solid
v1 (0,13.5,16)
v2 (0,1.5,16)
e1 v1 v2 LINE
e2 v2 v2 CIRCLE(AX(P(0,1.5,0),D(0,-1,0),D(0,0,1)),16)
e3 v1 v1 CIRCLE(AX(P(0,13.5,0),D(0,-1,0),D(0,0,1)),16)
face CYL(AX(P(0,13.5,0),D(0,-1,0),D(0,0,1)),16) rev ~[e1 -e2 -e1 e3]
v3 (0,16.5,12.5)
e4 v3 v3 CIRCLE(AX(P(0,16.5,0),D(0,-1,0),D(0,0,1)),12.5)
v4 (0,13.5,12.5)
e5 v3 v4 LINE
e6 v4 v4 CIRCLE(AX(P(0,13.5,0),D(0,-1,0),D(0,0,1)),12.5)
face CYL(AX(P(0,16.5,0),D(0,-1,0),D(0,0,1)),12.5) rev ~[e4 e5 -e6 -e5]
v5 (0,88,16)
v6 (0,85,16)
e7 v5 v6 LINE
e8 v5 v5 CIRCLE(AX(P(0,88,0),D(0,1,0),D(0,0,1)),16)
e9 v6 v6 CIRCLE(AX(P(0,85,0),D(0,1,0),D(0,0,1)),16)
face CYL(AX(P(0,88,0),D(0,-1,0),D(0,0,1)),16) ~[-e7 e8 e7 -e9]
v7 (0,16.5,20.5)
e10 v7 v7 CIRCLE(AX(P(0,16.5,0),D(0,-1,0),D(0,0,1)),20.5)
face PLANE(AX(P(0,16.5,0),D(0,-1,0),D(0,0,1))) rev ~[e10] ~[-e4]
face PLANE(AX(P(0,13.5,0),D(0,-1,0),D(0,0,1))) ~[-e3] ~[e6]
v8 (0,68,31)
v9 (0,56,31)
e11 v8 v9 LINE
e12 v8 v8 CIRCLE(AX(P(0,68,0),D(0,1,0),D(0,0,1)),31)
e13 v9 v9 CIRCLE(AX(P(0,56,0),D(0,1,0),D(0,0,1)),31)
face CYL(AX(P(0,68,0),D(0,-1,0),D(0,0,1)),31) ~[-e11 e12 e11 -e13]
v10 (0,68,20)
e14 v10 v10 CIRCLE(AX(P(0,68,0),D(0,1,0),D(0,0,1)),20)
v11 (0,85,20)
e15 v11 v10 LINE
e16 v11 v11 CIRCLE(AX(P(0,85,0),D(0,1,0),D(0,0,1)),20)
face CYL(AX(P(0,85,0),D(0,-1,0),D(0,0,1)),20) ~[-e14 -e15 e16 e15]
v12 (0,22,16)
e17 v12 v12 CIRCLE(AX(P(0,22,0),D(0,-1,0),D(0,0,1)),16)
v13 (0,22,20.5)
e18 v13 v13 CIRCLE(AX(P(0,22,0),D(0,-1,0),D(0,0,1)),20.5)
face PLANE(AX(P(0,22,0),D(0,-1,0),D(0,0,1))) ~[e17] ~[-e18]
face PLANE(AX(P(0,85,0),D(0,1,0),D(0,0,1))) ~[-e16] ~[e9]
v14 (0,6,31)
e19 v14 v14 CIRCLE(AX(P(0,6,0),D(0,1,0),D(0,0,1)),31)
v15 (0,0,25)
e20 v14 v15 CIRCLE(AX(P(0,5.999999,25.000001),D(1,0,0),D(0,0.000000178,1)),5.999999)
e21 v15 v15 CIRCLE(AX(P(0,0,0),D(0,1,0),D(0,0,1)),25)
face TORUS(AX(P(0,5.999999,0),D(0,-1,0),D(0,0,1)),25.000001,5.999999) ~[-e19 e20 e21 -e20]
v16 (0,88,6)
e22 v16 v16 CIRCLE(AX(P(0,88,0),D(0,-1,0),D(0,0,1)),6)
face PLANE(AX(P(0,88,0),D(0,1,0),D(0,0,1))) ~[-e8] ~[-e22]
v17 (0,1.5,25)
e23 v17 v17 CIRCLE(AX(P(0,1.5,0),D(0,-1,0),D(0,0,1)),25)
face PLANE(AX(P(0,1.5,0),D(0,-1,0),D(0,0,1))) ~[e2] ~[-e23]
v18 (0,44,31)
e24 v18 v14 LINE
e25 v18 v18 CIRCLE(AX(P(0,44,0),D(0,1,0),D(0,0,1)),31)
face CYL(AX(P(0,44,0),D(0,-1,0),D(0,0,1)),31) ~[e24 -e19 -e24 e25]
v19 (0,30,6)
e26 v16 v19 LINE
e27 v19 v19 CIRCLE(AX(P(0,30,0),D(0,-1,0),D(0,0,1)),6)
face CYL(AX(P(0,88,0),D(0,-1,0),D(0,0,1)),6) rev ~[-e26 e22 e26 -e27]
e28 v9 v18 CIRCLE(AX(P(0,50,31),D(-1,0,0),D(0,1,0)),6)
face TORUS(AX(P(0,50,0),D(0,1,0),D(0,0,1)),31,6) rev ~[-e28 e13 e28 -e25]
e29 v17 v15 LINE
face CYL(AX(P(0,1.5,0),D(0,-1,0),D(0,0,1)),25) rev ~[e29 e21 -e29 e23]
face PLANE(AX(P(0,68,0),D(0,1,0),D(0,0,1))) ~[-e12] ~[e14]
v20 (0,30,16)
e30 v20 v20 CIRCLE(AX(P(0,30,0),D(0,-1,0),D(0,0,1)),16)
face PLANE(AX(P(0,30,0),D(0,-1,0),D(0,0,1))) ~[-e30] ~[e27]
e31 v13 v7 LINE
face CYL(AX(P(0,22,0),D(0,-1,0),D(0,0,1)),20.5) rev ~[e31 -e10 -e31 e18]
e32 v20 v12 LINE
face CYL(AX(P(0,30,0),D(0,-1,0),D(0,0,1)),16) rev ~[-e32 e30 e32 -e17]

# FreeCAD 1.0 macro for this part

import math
import FreeCAD as App
import Part
import Sketcher

V = App.Vector
Q = App.Units.Quantity

doc = App.newDocument("Part")
body = doc.addObject("PartDesign::Body", "Body")

# Sketch on YZ plane
sketch1 = doc.addObject("Sketcher::SketchObject", "Sketch")
body.addObject(sketch1)
sketch1.AttachmentSupport = (doc.YZ_Plane, [""])
sketch1.MapMode = "FlatFace"
sketch1.addGeometry(Part.LineSegment(V(0, 25, 0), V(0, 0, 0)), False)
sketch1.addGeometry(Part.LineSegment(V(0, 0, 0), V(88, 0, 0)), False)
sketch1.addGeometry(Part.LineSegment(V(88, 0, 0), V(88, 16, 0)), False)
sketch1.addGeometry(Part.LineSegment(V(88, 16, 0), V(85, 16, 0)), False)
sketch1.addGeometry(Part.LineSegment(V(85, 16, 0), V(85, 20, 0)), False)
sketch1.addGeometry(Part.LineSegment(V(85, 20, 0), V(68, 20, 0)), False)
sketch1.addGeometry(Part.LineSegment(V(68, 20, 0), V(68, 31, 0)), False)
sketch1.addGeometry(Part.LineSegment(V(68, 31, 0), V(56, 31, 0)), False)
sketch1.addGeometry(Part.ArcOfCircle(Part.Circle(V(50, 31, 0), V(0, 0, 1), 6), math.radians(180), math.radians(360)), False)
sketch1.addGeometry(Part.LineSegment(V(44, 31, 0), V(6, 31, 0)), False)
sketch1.addGeometry(Part.ArcOfCircle(Part.Circle(V(5.999999, 25.000001, 0), V(0, 0, 1), 5.999999), math.radians(89.99999), math.radians(180.00001)), False)
sketch1.addConstraint(Sketcher.Constraint("Coincident", 0, 2, 1, 1))
sketch1.addConstraint(Sketcher.Constraint("Coincident", 1, 2, 2, 1))
sketch1.addConstraint(Sketcher.Constraint("Coincident", 2, 2, 3, 1))
sketch1.addConstraint(Sketcher.Constraint("Coincident", 3, 2, 4, 1))
sketch1.addConstraint(Sketcher.Constraint("Coincident", 4, 2, 5, 1))
sketch1.addConstraint(Sketcher.Constraint("Coincident", 5, 2, 6, 1))
sketch1.addConstraint(Sketcher.Constraint("Coincident", 6, 2, 7, 1))
sketch1.addConstraint(Sketcher.Constraint("Coincident", 7, 2, 8, 2))
sketch1.addConstraint(Sketcher.Constraint("Coincident", 8, 1, 9, 1))
sketch1.addConstraint(Sketcher.Constraint("Tangent", 9, 2, 10, 1))
sketch1.addConstraint(Sketcher.Constraint("Tangent", 10, 2, 0, 1))
sketch1.addConstraint(Sketcher.Constraint("Vertical", 0))
sketch1.addConstraint(Sketcher.Constraint("Horizontal", 1))
sketch1.addConstraint(Sketcher.Constraint("Vertical", 2))
sketch1.addConstraint(Sketcher.Constraint("Horizontal", 3))
sketch1.addConstraint(Sketcher.Constraint("Vertical", 4))
sketch1.addConstraint(Sketcher.Constraint("Horizontal", 5))
sketch1.addConstraint(Sketcher.Constraint("Vertical", 6))
sketch1.addConstraint(Sketcher.Constraint("Horizontal", 7))
sketch1.addConstraint(Sketcher.Constraint("Horizontal", 9))
sketch1.addConstraint(Sketcher.Constraint("Coincident", 0, 2, -1, 1))
sketch1.addConstraint(Sketcher.Constraint("Equal", 8, 10))
sketch1.addConstraint(Sketcher.Constraint("Horizontal", 8, 3, 6, 2))
sketch1.addConstraint(Sketcher.Constraint("Horizontal", 7, 2, 8, 1))
sketch1.addConstraint(Sketcher.Constraint("Radius", 8, Q("6 mm")))
sketch1.addConstraint(Sketcher.Constraint("DistanceX", 1, 1, 1, 2, Q("88 mm")))
sketch1.addConstraint(Sketcher.Constraint("DistanceX", 3, 2, 3, 1, Q("3 mm")))
sketch1.addConstraint(Sketcher.Constraint("DistanceX", 5, 2, 5, 1, Q("17 mm")))
sketch1.addConstraint(Sketcher.Constraint("DistanceX", 7, 2, 7, 1, Q("12 mm")))
sketch1.addConstraint(Sketcher.Constraint("DistanceY", 0, 2, 0, 1, Q("25 mm")))
sketch1.addConstraint(Sketcher.Constraint("DistanceY", 2, 1, 2, 2, Q("16 mm")))
sketch1.addConstraint(Sketcher.Constraint("DistanceY", 4, 1, 4, 2, Q("4 mm")))
revolution = doc.addObject("PartDesign::Revolution", "Revolution")
body.addObject(revolution)
revolution.Profile = sketch1
revolution.ReferenceAxis = (sketch1, ["H_Axis"])
revolution.Angle = 360

# Sketch on YZ plane
sketch2 = doc.addObject("Sketcher::SketchObject", "Sketch001")
body.addObject(sketch2)
sketch2.AttachmentSupport = (doc.YZ_Plane, [""])
sketch2.MapMode = "FlatFace"
sketch2.addGeometry(Part.LineSegment(V(13.5, 12.5, 0), V(13.5, 16, 0)), False)
sketch2.addGeometry(Part.LineSegment(V(13.5, 16, 0), V(1.5, 16, 0)), False)
sketch2.addGeometry(Part.LineSegment(V(1.5, 16, 0), V(1.5, 25, 0)), False)
sketch2.addGeometry(Part.LineSegment(V(1.5, 25, 0), V(0, 25, 0)), False)
sketch2.addGeometry(Part.LineSegment(V(0, 25, 0), V(0, 0, 0)), False)
sketch2.addGeometry(Part.LineSegment(V(0, 0, 0), V(88, 0, 0)), False)
sketch2.addGeometry(Part.LineSegment(V(88, 0, 0), V(88, 6, 0)), False)
sketch2.addGeometry(Part.LineSegment(V(88, 6, 0), V(30, 6, 0)), False)
sketch2.addGeometry(Part.LineSegment(V(30, 6, 0), V(30, 16, 0)), False)
sketch2.addGeometry(Part.LineSegment(V(30, 16, 0), V(22, 16, 0)), False)
sketch2.addGeometry(Part.LineSegment(V(22, 16, 0), V(22, 20.5, 0)), False)
sketch2.addGeometry(Part.LineSegment(V(22, 20.5, 0), V(16.5, 20.5, 0)), False)
sketch2.addGeometry(Part.LineSegment(V(16.5, 20.5, 0), V(16.5, 12.5, 0)), False)
sketch2.addGeometry(Part.LineSegment(V(16.5, 12.5, 0), V(13.5, 12.5, 0)), False)
sketch2.addConstraint(Sketcher.Constraint("Coincident", 0, 2, 1, 1))
sketch2.addConstraint(Sketcher.Constraint("Coincident", 1, 2, 2, 1))
sketch2.addConstraint(Sketcher.Constraint("Coincident", 2, 2, 3, 1))
sketch2.addConstraint(Sketcher.Constraint("Coincident", 3, 2, 4, 1))
sketch2.addConstraint(Sketcher.Constraint("Coincident", 4, 2, 5, 1))
sketch2.addConstraint(Sketcher.Constraint("Coincident", 5, 2, 6, 1))
sketch2.addConstraint(Sketcher.Constraint("Coincident", 6, 2, 7, 1))
sketch2.addConstraint(Sketcher.Constraint("Coincident", 7, 2, 8, 1))
sketch2.addConstraint(Sketcher.Constraint("Coincident", 8, 2, 9, 1))
sketch2.addConstraint(Sketcher.Constraint("Coincident", 9, 2, 10, 1))
sketch2.addConstraint(Sketcher.Constraint("Coincident", 10, 2, 11, 1))
sketch2.addConstraint(Sketcher.Constraint("Coincident", 11, 2, 12, 1))
sketch2.addConstraint(Sketcher.Constraint("Coincident", 12, 2, 13, 1))
sketch2.addConstraint(Sketcher.Constraint("Coincident", 13, 2, 0, 1))
sketch2.addConstraint(Sketcher.Constraint("Vertical", 0))
sketch2.addConstraint(Sketcher.Constraint("Horizontal", 1))
sketch2.addConstraint(Sketcher.Constraint("Vertical", 2))
sketch2.addConstraint(Sketcher.Constraint("Horizontal", 3))
sketch2.addConstraint(Sketcher.Constraint("Vertical", 4))
sketch2.addConstraint(Sketcher.Constraint("Horizontal", 5))
sketch2.addConstraint(Sketcher.Constraint("Vertical", 6))
sketch2.addConstraint(Sketcher.Constraint("Horizontal", 7))
sketch2.addConstraint(Sketcher.Constraint("Vertical", 8))
sketch2.addConstraint(Sketcher.Constraint("Horizontal", 9))
sketch2.addConstraint(Sketcher.Constraint("Vertical", 10))
sketch2.addConstraint(Sketcher.Constraint("Horizontal", 11))
sketch2.addConstraint(Sketcher.Constraint("Vertical", 12))
sketch2.addConstraint(Sketcher.Constraint("Horizontal", 13))
sketch2.addConstraint(Sketcher.Constraint("Coincident", 4, 2, -1, 1))
sketch2.addConstraint(Sketcher.Constraint("Horizontal", 1, 2, 8, 2))
sketch2.addConstraint(Sketcher.Constraint("Equal", 9, 12))
sketch2.addConstraint(Sketcher.Constraint("DistanceX", 1, 2, 1, 1, Q("12 mm")))
sketch2.addConstraint(Sketcher.Constraint("DistanceX", 5, 1, 5, 2, Q("88 mm")))
sketch2.addConstraint(Sketcher.Constraint("DistanceX", 7, 2, 7, 1, Q("58 mm")))
sketch2.addConstraint(Sketcher.Constraint("DistanceX", 9, 2, 9, 1, Q("8 mm")))
sketch2.addConstraint(Sketcher.Constraint("DistanceX", 13, 2, 13, 1, Q("3 mm")))
sketch2.addConstraint(Sketcher.Constraint("DistanceY", 2, 1, 2, 2, Q("9 mm")))
sketch2.addConstraint(Sketcher.Constraint("DistanceY", 4, 2, 4, 1, Q("25 mm")))
sketch2.addConstraint(Sketcher.Constraint("DistanceY", 6, 1, 6, 2, Q("6 mm")))
sketch2.addConstraint(Sketcher.Constraint("DistanceX", 3, 2, 3, 1, Q("1.5 mm")))
sketch2.addConstraint(Sketcher.Constraint("DistanceY", 0, 1, 0, 2, Q("3.5 mm")))
groove = doc.addObject("PartDesign::Groove", "Groove")
body.addObject(groove)
groove.Profile = sketch2
groove.ReferenceAxis = (sketch2, ["H_Axis"])
groove.Angle = 360

doc.recompute()
